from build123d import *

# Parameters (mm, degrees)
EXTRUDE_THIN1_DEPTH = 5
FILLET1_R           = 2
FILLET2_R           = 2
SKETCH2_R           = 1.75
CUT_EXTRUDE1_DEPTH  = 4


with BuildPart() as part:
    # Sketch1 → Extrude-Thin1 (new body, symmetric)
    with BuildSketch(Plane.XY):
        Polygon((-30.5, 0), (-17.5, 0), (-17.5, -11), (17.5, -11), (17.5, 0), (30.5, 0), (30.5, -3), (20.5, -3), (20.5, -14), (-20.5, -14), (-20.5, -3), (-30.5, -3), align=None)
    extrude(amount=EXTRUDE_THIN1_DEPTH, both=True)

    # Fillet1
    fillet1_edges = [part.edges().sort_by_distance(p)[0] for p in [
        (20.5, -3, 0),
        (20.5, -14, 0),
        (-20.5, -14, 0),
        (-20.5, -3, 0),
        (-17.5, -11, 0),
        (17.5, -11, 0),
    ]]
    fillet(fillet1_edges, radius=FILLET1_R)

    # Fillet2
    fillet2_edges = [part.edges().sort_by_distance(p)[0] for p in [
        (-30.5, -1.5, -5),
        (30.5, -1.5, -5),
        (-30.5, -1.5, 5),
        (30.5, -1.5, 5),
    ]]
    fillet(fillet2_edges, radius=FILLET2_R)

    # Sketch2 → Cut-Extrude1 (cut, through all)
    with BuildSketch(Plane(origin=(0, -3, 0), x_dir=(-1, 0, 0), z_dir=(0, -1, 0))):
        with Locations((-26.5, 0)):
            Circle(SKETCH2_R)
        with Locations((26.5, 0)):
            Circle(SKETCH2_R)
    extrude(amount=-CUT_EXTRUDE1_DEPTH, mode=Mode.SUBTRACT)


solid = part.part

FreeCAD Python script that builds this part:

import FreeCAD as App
import Part
import Sketcher
from FreeCAD import Vector


def edges_at(feature, points):
    """Names of the edges that pass closest to the given points."""
    edges = feature.Shape.Edges
    near = lambda p: min(range(len(edges)), key=lambda i: edges[i].distToShape(Part.Vertex(*p))[0])
    return sorted({f"Edge{near(p) + 1}" for p in points})

doc = App.newDocument("Part")
params = doc.addObject("Spreadsheet::Sheet", "Params")
for row, (alias, value) in enumerate([
    ("sketch1_width", "13 mm"),
    ("sketch1_width2", "10 mm"),
    ("sketch1_width3", "41 mm"),
    ("sketch1_height", "3 mm"),
    ("sketch1_height2", "11 mm"),
    ("pad1_length", "10 mm"),
    ("fillet_radius", "2 mm"),
    ("fillet2_radius", "2 mm"),
    ("sketch2_diameter", "3.5 mm"),
], start=1):
    params.set(f"A{row}", alias)
    params.set(f"B{row}", "=" + value)
    params.setAlias(f"B{row}", alias)

body = doc.addObject("PartDesign::Body", "Body")

# Sketch on XY plane
sketch1 = body.newObject("Sketcher::SketchObject", "Sketch")
sketch1.AttachmentSupport = (doc.getObject("XY_Plane"), [""])
sketch1.MapMode = "FlatFace"
sketch1.addGeometry([
    Part.LineSegment(Vector(-17.5, 0, 0), Vector(-30.5, 0, 0)),  # 0
    Part.LineSegment(Vector(-30.5, 0, 0), Vector(-30.5, -3, 0)),  # 1
    Part.LineSegment(Vector(-30.5, -3, 0), Vector(-20.5, -3, 0)),  # 2
    Part.LineSegment(Vector(-20.5, -3, 0), Vector(-20.5, -14, 0)),  # 3
    Part.LineSegment(Vector(-20.5, -14, 0), Vector(20.5, -14, 0)),  # 4
    Part.LineSegment(Vector(20.5, -14, 0), Vector(20.5, -3, 0)),  # 5
    Part.LineSegment(Vector(20.5, -3, 0), Vector(30.5, -3, 0)),  # 6
    Part.LineSegment(Vector(30.5, -3, 0), Vector(30.5, 0, 0)),  # 7
    Part.LineSegment(Vector(30.5, 0, 0), Vector(17.5, 0, 0)),  # 8
    Part.LineSegment(Vector(17.5, 0, 0), Vector(17.5, -11, 0)),  # 9
    Part.LineSegment(Vector(17.5, -11, 0), Vector(-17.5, -11, 0)),  # 10
    Part.LineSegment(Vector(-17.5, -11, 0), Vector(-17.5, 0, 0)),  # 11
], False)
sketch1.addConstraint([
    Sketcher.Constraint("Coincident", 0, 2, 1, 1),
    Sketcher.Constraint("Coincident", 1, 2, 2, 1),
    Sketcher.Constraint("Coincident", 2, 2, 3, 1),
    Sketcher.Constraint("Coincident", 3, 2, 4, 1),
    Sketcher.Constraint("Coincident", 4, 2, 5, 1),
    Sketcher.Constraint("Coincident", 5, 2, 6, 1),
    Sketcher.Constraint("Coincident", 6, 2, 7, 1),
    Sketcher.Constraint("Coincident", 7, 2, 8, 1),
    Sketcher.Constraint("Coincident", 8, 2, 9, 1),
    Sketcher.Constraint("Coincident", 9, 2, 10, 1),
    Sketcher.Constraint("Coincident", 10, 2, 11, 1),
    Sketcher.Constraint("Coincident", 11, 2, 0, 1),
    Sketcher.Constraint("Horizontal", 0),
    Sketcher.Constraint("Vertical", 1),
    Sketcher.Constraint("Horizontal", 2),
    Sketcher.Constraint("Vertical", 3),
    Sketcher.Constraint("Horizontal", 4),
    Sketcher.Constraint("Vertical", 5),
    Sketcher.Constraint("Horizontal", 6),
    Sketcher.Constraint("Vertical", 7),
    Sketcher.Constraint("Horizontal", 8),
    Sketcher.Constraint("Vertical", 9),
    Sketcher.Constraint("Horizontal", 10),
    Sketcher.Constraint("Vertical", 11),
    Sketcher.Constraint("Symmetric", 0, 2, 7, 2, -1, 1),
    Sketcher.Constraint("Symmetric", 2, 2, 5, 2, -2),
    Sketcher.Constraint("Symmetric", 8, 2, 11, 2, -2),
    Sketcher.Constraint("Equal", 5, 9),
    Sketcher.Constraint("DistanceX", 0, 2, 0, 1, 13.0),
    Sketcher.Constraint("DistanceX", 2, 1, 2, 2, 10.0),
    Sketcher.Constraint("DistanceX", 4, 1, 4, 2, 41.0),
    Sketcher.Constraint("DistanceY", 1, 2, 1, 1, 3.0),
    Sketcher.Constraint("DistanceY", 3, 2, 3, 1, 11.0),
])
sketch1.setExpression("Constraints[28]", "Params.sketch1_width")
sketch1.setExpression("Constraints[29]", "Params.sketch1_width2")
sketch1.setExpression("Constraints[30]", "Params.sketch1_width3")
sketch1.setExpression("Constraints[31]", "Params.sketch1_height")
sketch1.setExpression("Constraints[32]", "Params.sketch1_height2")
pad1 = body.newObject("PartDesign::Pad", "Pad")
pad1.Profile = sketch1
pad1.setExpression("Length", "Params.pad1_length")
pad1.Midplane = True
doc.recompute()

fillet = body.newObject("PartDesign::Fillet", "Fillet")
fillet.Base = (pad1, edges_at(pad1, [
    (20.5, -3, 0),
    (20.5, -14, 0),
    (-20.5, -14, 0),
    (-20.5, -3, 0),
    (-17.5, -11, 0),
    (17.5, -11, 0),
]))
fillet.setExpression("Radius", "Params.fillet_radius")
doc.recompute()

fillet2 = body.newObject("PartDesign::Fillet", "Fillet001")
fillet2.Base = (fillet, edges_at(fillet, [
    (-30.5, -1.5, -5),
    (30.5, -1.5, -5),
    (-30.5, -1.5, 5),
    (30.5, -1.5, 5),
]))
fillet2.setExpression("Radius", "Params.fillet2_radius")

# Sketch on XZ plane
sketch2 = body.newObject("Sketcher::SketchObject", "Sketch001")
sketch2.AttachmentSupport = (doc.getObject("XZ_Plane"), [""])
sketch2.MapMode = "FlatFace"
sketch2.AttachmentOffset = App.Placement(Vector(0, 0, 3), App.Rotation())
sketch2.addGeometry([
    Part.Circle(Vector(26.5, 0, 0), Vector(0, 0, 1), 1.75),
    Part.Circle(Vector(-26.5, 0, 0), Vector(0, 0, 1), 1.75),
], False)
sketch2.addConstraint([
    Sketcher.Constraint("Equal", 0, 1),
    Sketcher.Constraint("Symmetric", 0, 3, 1, 3, -1, 1),
    Sketcher.Constraint("PointOnObject", 0, 3, -1),
    Sketcher.Constraint("Diameter", 0, 3.5),
    Sketcher.Constraint("DistanceX", 1, 3, 0, 3, 53.0),
])
sketch2.setExpression("Constraints[3]", "Params.sketch2_diameter")
pocket1 = body.newObject("PartDesign::Pocket", "Pocket")
pocket1.Profile = sketch2
pocket1.Type = "ThroughAll"

doc.recompute()
